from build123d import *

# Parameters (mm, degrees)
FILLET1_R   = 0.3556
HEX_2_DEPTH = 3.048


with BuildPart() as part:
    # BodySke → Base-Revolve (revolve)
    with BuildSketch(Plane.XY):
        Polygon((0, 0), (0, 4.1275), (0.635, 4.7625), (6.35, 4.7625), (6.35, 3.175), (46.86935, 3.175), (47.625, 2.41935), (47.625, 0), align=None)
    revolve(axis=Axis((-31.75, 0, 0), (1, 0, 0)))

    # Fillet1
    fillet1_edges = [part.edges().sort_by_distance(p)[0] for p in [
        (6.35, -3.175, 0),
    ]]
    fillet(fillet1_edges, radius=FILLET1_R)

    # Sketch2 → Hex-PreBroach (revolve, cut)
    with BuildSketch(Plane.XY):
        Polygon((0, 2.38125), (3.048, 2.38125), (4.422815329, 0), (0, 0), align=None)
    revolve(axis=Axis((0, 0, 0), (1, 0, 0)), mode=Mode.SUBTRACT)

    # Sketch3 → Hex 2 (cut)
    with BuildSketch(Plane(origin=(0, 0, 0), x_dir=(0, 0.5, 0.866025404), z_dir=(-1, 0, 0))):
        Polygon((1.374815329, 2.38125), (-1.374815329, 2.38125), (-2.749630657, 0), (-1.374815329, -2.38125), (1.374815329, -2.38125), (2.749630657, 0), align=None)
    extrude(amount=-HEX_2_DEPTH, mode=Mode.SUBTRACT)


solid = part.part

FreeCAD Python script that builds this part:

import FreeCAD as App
import Part
import Sketcher
Q = App.Units.Quantity


def edges_at(feature, points):
    """Names of the edges that pass closest to the given points."""
    edges = feature.Shape.Edges
    near = lambda p: min(range(len(edges)), key=lambda i: edges[i].distToShape(Part.Vertex(*p))[0])
    return sorted({f"Edge{near(p) + 1}" for p in points})


def add_polygon(sketch, points):
    """Adds a closed chain of lines whose ends are joined by coincident constraints."""
    first, n = sketch.GeometryCount, len(points)
    for a, b in zip(points, points[1:] + points[:1]):
        sketch.addGeometry(Part.LineSegment(App.Vector(*a, 0), App.Vector(*b, 0)), False)
    for i in range(n):
        sketch.addConstraint(Sketcher.Constraint("Coincident", first + i, 2, first + (i + 1) % n, 1))

doc = App.newDocument("Part")
body = doc.addObject("PartDesign::Body", "Body")

# Sketch on XY plane
sketch1 = body.newObject("Sketcher::SketchObject", "Sketch")
sketch1.AttachmentSupport = (doc.getObject("XY_Plane"), [""])
sketch1.MapMode = "FlatFace"
add_polygon(sketch1, [(0, 4.1), (0, 0), (47.6, 0), (47.6, 2.4), (46.9, 3.2), (6.3, 3.2), (6.3, 4.8), (0.6, 4.8)])  # lines 0-7
sketch1.addConstraint(Sketcher.Constraint("Vertical", 0))
sketch1.addConstraint(Sketcher.Constraint("Horizontal", 1))
sketch1.addConstraint(Sketcher.Constraint("Vertical", 2))
sketch1.addConstraint(Sketcher.Constraint("Horizontal", 4))
sketch1.addConstraint(Sketcher.Constraint("Vertical", 5))
sketch1.addConstraint(Sketcher.Constraint("Horizontal", 6))
sketch1.addConstraint(Sketcher.Constraint("Coincident", 0, 2, -1, 1))
sketch1.addConstraint(Sketcher.Constraint("Perpendicular", 3, 7))
sketch1.addConstraint(Sketcher.Constraint("Angle", 3, Q("135 deg")))
sketch1.addConstraint(Sketcher.Constraint("DistanceX", 1, 1, 1, 2, Q("1.875 in")))
sketch1.addConstraint(Sketcher.Constraint("DistanceX", 6, 2, 6, 1, Q("0.225 in")))
sketch1.addConstraint(Sketcher.Constraint("DistanceY", 5, 1, 5, 2, Q("0.0625 in")))
sketch1.addConstraint(Sketcher.Constraint("DistanceX", -1, 1, 4, 2, Q("0.25 in")))
sketch1.addConstraint(Sketcher.Constraint("DistanceY", 0, 2, 0, 1, Q("0.1625 in")))
sketch1.addConstraint(Sketcher.Constraint("DistanceX", 4, 2, 4, 1, 40.51935))
revolution = body.newObject("PartDesign::Revolution", "Revolution")
revolution.Profile = sketch1
revolution.ReferenceAxis = (sketch1, ["H_Axis"])
revolution.Angle = 360
doc.recompute()

fillet = body.newObject("PartDesign::Fillet", "Fillet")
fillet.Base = (revolution, edges_at(revolution, [(6.35, -3.175, 0)]))
fillet.Radius = Q("0.014 in")

# Sketch on XY plane
sketch2 = body.newObject("Sketcher::SketchObject", "Sketch001")
sketch2.AttachmentSupport = (doc.getObject("XY_Plane"), [""])
sketch2.MapMode = "FlatFace"
add_polygon(sketch2, [(3, 2.4), (0, 2.4), (0, 0), (4.4, 0)])  # lines 0-3
sketch2.addConstraint(Sketcher.Constraint("Horizontal", 0))
sketch2.addConstraint(Sketcher.Constraint("Vertical", 1))
sketch2.addConstraint(Sketcher.Constraint("Horizontal", 2))
sketch2.addConstraint(Sketcher.Constraint("Coincident", 1, 2, -1, 1))
sketch2.addConstraint(Sketcher.Constraint("Angle", 3, Q("120 deg")))
sketch2.addConstraint(Sketcher.Constraint("DistanceX", 0, 2, 0, 1, Q("0.12 in")))
sketch2.addConstraint(Sketcher.Constraint("DistanceY", 1, 2, 1, 1, Q("0.09375 in")))
groove = body.newObject("PartDesign::Groove", "Groove")
groove.Profile = sketch2
groove.ReferenceAxis = (sketch2, ["H_Axis"])
groove.Angle = 360

# Sketch on YZ plane
sketch3 = body.newObject("Sketcher::SketchObject", "Sketch002")
sketch3.AttachmentSupport = (doc.getObject("YZ_Plane"), [""])
sketch3.MapMode = "FlatFace"
add_polygon(sketch3, [(2.7, 0), (1.4, -2.4), (-1.4, -2.4), (-2.7, 0), (-1.4, 2.4), (1.4, 2.4)])  # lines 0-5
sketch3.addConstraint(Sketcher.Constraint("Horizontal", 1))
sketch3.addConstraint(Sketcher.Constraint("Horizontal", 4))
sketch3.addConstraint(Sketcher.Constraint("Symmetric", 0, 2, 3, 2, -1, 1))
sketch3.addConstraint(Sketcher.Constraint("Symmetric", 2, 2, 5, 2, -1, 1))
sketch3.addConstraint(Sketcher.Constraint("PointOnObject", 2, 2, -1))
sketch3.addConstraint(Sketcher.Constraint("Parallel", 2, 5))
sketch3.addConstraint(Sketcher.Constraint("Vertical", 1, 2, 3, 2))
sketch3.addConstraint(Sketcher.Constraint("Angle", 0, Q("-120 deg")))
sketch3.addConstraint(Sketcher.Constraint("DistanceY", 0, 2, -1, 1, Q("0.09375 in")))
sketch3.addConstraint(Sketcher.Constraint("DistanceX", 1, 2, 1, 1, 2.749631))
pocket1 = body.newObject("PartDesign::Pocket", "Pocket")
pocket1.Profile = sketch3
pocket1.Length = Q("0.12 in")
pocket1.Reversed = True

doc.recompute()
